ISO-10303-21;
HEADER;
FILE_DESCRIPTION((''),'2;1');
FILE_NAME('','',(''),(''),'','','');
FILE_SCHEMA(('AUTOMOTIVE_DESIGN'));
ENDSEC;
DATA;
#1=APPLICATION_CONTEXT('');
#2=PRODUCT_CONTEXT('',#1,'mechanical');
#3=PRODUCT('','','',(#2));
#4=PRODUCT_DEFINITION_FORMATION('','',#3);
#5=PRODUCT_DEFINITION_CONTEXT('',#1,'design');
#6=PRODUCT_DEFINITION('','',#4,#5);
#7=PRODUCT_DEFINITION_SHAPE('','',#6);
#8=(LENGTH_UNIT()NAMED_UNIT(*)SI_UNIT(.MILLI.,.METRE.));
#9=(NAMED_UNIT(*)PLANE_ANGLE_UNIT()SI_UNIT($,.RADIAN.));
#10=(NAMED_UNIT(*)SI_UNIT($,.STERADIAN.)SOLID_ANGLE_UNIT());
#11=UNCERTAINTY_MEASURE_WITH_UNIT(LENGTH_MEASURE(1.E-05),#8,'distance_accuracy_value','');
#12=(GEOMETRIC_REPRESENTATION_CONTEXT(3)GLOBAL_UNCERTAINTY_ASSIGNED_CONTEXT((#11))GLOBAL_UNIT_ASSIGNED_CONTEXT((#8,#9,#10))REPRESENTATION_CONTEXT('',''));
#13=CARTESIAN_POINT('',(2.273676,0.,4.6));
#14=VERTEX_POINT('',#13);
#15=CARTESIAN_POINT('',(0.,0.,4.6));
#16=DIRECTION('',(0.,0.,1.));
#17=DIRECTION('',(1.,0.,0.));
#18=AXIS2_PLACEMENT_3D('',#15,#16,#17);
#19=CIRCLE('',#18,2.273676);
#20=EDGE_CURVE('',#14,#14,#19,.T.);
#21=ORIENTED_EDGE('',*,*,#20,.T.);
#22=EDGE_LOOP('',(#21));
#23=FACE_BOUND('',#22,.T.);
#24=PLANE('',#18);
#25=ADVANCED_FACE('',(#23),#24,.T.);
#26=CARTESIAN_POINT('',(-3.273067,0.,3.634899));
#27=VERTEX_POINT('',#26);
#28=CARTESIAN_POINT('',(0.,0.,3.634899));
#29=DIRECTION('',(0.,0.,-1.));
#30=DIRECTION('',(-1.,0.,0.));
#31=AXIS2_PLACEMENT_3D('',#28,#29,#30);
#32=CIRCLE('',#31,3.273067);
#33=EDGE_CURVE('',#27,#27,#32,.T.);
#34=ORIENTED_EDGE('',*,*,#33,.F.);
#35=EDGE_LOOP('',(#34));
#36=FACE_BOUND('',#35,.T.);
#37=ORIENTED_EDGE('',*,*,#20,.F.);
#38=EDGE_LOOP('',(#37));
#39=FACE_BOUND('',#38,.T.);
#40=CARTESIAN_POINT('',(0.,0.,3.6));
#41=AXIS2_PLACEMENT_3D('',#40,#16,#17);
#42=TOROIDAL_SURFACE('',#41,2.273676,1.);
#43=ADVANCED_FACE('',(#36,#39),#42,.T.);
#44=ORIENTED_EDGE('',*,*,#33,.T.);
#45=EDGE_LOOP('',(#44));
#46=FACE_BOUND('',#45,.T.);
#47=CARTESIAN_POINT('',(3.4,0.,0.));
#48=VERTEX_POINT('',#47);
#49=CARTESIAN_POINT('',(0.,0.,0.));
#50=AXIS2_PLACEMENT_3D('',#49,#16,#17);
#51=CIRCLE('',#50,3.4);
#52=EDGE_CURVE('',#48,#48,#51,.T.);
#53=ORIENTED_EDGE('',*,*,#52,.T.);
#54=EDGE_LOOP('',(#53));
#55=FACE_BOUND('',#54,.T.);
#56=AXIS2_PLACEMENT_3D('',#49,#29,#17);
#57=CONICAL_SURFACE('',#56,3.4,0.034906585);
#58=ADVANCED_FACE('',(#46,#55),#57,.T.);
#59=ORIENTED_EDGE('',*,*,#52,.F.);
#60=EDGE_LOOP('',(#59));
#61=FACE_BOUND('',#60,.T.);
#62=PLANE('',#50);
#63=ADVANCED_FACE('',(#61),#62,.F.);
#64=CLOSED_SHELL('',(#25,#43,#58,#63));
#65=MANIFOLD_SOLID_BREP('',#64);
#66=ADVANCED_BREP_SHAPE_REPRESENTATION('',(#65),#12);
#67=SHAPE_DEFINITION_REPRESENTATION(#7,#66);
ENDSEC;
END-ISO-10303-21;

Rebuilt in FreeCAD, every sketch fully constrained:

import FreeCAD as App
import Part
import Sketcher
from FreeCAD import Vector
Q = App.Units.Quantity


def edges_at(feature, points):
    """Names of the edges that pass closest to the given points."""
    edges = feature.Shape.Edges
    near = lambda p: min(range(len(edges)), key=lambda i: edges[i].distToShape(Part.Vertex(*p))[0])
    return sorted({f"Edge{near(p) + 1}" for p in points})

doc = App.newDocument("Part")
body = doc.addObject("PartDesign::Body", "Body")

sketch1 = body.newObject("Sketcher::SketchObject", "Sketch")
sketch1.AttachmentSupport = (doc.getObject("XY_Plane"), [""])
sketch1.MapMode = "FlatFace"
sketch1.addGeometry(Part.Circle(Vector(0, 0, 0), Vector(0, 0, 1), 3.4), False)
sketch1.addConstraint([
    Sketcher.Constraint("Coincident", 0, 3, -1, 1),
    Sketcher.Constraint("Diameter", 0, Q("6.8 mm")),
])
pad1 = body.newObject("PartDesign::Pad", "Pad")
pad1.Profile = sketch1
pad1.Length = 4.6
pad1.TaperAngle = -2
doc.recompute()

fillet = body.newObject("PartDesign::Fillet", "Fillet")
fillet.Base = (pad1, edges_at(pad1, [(-3.239, 0, 4.6)]))
fillet.Radius = 1

doc.recompute()
